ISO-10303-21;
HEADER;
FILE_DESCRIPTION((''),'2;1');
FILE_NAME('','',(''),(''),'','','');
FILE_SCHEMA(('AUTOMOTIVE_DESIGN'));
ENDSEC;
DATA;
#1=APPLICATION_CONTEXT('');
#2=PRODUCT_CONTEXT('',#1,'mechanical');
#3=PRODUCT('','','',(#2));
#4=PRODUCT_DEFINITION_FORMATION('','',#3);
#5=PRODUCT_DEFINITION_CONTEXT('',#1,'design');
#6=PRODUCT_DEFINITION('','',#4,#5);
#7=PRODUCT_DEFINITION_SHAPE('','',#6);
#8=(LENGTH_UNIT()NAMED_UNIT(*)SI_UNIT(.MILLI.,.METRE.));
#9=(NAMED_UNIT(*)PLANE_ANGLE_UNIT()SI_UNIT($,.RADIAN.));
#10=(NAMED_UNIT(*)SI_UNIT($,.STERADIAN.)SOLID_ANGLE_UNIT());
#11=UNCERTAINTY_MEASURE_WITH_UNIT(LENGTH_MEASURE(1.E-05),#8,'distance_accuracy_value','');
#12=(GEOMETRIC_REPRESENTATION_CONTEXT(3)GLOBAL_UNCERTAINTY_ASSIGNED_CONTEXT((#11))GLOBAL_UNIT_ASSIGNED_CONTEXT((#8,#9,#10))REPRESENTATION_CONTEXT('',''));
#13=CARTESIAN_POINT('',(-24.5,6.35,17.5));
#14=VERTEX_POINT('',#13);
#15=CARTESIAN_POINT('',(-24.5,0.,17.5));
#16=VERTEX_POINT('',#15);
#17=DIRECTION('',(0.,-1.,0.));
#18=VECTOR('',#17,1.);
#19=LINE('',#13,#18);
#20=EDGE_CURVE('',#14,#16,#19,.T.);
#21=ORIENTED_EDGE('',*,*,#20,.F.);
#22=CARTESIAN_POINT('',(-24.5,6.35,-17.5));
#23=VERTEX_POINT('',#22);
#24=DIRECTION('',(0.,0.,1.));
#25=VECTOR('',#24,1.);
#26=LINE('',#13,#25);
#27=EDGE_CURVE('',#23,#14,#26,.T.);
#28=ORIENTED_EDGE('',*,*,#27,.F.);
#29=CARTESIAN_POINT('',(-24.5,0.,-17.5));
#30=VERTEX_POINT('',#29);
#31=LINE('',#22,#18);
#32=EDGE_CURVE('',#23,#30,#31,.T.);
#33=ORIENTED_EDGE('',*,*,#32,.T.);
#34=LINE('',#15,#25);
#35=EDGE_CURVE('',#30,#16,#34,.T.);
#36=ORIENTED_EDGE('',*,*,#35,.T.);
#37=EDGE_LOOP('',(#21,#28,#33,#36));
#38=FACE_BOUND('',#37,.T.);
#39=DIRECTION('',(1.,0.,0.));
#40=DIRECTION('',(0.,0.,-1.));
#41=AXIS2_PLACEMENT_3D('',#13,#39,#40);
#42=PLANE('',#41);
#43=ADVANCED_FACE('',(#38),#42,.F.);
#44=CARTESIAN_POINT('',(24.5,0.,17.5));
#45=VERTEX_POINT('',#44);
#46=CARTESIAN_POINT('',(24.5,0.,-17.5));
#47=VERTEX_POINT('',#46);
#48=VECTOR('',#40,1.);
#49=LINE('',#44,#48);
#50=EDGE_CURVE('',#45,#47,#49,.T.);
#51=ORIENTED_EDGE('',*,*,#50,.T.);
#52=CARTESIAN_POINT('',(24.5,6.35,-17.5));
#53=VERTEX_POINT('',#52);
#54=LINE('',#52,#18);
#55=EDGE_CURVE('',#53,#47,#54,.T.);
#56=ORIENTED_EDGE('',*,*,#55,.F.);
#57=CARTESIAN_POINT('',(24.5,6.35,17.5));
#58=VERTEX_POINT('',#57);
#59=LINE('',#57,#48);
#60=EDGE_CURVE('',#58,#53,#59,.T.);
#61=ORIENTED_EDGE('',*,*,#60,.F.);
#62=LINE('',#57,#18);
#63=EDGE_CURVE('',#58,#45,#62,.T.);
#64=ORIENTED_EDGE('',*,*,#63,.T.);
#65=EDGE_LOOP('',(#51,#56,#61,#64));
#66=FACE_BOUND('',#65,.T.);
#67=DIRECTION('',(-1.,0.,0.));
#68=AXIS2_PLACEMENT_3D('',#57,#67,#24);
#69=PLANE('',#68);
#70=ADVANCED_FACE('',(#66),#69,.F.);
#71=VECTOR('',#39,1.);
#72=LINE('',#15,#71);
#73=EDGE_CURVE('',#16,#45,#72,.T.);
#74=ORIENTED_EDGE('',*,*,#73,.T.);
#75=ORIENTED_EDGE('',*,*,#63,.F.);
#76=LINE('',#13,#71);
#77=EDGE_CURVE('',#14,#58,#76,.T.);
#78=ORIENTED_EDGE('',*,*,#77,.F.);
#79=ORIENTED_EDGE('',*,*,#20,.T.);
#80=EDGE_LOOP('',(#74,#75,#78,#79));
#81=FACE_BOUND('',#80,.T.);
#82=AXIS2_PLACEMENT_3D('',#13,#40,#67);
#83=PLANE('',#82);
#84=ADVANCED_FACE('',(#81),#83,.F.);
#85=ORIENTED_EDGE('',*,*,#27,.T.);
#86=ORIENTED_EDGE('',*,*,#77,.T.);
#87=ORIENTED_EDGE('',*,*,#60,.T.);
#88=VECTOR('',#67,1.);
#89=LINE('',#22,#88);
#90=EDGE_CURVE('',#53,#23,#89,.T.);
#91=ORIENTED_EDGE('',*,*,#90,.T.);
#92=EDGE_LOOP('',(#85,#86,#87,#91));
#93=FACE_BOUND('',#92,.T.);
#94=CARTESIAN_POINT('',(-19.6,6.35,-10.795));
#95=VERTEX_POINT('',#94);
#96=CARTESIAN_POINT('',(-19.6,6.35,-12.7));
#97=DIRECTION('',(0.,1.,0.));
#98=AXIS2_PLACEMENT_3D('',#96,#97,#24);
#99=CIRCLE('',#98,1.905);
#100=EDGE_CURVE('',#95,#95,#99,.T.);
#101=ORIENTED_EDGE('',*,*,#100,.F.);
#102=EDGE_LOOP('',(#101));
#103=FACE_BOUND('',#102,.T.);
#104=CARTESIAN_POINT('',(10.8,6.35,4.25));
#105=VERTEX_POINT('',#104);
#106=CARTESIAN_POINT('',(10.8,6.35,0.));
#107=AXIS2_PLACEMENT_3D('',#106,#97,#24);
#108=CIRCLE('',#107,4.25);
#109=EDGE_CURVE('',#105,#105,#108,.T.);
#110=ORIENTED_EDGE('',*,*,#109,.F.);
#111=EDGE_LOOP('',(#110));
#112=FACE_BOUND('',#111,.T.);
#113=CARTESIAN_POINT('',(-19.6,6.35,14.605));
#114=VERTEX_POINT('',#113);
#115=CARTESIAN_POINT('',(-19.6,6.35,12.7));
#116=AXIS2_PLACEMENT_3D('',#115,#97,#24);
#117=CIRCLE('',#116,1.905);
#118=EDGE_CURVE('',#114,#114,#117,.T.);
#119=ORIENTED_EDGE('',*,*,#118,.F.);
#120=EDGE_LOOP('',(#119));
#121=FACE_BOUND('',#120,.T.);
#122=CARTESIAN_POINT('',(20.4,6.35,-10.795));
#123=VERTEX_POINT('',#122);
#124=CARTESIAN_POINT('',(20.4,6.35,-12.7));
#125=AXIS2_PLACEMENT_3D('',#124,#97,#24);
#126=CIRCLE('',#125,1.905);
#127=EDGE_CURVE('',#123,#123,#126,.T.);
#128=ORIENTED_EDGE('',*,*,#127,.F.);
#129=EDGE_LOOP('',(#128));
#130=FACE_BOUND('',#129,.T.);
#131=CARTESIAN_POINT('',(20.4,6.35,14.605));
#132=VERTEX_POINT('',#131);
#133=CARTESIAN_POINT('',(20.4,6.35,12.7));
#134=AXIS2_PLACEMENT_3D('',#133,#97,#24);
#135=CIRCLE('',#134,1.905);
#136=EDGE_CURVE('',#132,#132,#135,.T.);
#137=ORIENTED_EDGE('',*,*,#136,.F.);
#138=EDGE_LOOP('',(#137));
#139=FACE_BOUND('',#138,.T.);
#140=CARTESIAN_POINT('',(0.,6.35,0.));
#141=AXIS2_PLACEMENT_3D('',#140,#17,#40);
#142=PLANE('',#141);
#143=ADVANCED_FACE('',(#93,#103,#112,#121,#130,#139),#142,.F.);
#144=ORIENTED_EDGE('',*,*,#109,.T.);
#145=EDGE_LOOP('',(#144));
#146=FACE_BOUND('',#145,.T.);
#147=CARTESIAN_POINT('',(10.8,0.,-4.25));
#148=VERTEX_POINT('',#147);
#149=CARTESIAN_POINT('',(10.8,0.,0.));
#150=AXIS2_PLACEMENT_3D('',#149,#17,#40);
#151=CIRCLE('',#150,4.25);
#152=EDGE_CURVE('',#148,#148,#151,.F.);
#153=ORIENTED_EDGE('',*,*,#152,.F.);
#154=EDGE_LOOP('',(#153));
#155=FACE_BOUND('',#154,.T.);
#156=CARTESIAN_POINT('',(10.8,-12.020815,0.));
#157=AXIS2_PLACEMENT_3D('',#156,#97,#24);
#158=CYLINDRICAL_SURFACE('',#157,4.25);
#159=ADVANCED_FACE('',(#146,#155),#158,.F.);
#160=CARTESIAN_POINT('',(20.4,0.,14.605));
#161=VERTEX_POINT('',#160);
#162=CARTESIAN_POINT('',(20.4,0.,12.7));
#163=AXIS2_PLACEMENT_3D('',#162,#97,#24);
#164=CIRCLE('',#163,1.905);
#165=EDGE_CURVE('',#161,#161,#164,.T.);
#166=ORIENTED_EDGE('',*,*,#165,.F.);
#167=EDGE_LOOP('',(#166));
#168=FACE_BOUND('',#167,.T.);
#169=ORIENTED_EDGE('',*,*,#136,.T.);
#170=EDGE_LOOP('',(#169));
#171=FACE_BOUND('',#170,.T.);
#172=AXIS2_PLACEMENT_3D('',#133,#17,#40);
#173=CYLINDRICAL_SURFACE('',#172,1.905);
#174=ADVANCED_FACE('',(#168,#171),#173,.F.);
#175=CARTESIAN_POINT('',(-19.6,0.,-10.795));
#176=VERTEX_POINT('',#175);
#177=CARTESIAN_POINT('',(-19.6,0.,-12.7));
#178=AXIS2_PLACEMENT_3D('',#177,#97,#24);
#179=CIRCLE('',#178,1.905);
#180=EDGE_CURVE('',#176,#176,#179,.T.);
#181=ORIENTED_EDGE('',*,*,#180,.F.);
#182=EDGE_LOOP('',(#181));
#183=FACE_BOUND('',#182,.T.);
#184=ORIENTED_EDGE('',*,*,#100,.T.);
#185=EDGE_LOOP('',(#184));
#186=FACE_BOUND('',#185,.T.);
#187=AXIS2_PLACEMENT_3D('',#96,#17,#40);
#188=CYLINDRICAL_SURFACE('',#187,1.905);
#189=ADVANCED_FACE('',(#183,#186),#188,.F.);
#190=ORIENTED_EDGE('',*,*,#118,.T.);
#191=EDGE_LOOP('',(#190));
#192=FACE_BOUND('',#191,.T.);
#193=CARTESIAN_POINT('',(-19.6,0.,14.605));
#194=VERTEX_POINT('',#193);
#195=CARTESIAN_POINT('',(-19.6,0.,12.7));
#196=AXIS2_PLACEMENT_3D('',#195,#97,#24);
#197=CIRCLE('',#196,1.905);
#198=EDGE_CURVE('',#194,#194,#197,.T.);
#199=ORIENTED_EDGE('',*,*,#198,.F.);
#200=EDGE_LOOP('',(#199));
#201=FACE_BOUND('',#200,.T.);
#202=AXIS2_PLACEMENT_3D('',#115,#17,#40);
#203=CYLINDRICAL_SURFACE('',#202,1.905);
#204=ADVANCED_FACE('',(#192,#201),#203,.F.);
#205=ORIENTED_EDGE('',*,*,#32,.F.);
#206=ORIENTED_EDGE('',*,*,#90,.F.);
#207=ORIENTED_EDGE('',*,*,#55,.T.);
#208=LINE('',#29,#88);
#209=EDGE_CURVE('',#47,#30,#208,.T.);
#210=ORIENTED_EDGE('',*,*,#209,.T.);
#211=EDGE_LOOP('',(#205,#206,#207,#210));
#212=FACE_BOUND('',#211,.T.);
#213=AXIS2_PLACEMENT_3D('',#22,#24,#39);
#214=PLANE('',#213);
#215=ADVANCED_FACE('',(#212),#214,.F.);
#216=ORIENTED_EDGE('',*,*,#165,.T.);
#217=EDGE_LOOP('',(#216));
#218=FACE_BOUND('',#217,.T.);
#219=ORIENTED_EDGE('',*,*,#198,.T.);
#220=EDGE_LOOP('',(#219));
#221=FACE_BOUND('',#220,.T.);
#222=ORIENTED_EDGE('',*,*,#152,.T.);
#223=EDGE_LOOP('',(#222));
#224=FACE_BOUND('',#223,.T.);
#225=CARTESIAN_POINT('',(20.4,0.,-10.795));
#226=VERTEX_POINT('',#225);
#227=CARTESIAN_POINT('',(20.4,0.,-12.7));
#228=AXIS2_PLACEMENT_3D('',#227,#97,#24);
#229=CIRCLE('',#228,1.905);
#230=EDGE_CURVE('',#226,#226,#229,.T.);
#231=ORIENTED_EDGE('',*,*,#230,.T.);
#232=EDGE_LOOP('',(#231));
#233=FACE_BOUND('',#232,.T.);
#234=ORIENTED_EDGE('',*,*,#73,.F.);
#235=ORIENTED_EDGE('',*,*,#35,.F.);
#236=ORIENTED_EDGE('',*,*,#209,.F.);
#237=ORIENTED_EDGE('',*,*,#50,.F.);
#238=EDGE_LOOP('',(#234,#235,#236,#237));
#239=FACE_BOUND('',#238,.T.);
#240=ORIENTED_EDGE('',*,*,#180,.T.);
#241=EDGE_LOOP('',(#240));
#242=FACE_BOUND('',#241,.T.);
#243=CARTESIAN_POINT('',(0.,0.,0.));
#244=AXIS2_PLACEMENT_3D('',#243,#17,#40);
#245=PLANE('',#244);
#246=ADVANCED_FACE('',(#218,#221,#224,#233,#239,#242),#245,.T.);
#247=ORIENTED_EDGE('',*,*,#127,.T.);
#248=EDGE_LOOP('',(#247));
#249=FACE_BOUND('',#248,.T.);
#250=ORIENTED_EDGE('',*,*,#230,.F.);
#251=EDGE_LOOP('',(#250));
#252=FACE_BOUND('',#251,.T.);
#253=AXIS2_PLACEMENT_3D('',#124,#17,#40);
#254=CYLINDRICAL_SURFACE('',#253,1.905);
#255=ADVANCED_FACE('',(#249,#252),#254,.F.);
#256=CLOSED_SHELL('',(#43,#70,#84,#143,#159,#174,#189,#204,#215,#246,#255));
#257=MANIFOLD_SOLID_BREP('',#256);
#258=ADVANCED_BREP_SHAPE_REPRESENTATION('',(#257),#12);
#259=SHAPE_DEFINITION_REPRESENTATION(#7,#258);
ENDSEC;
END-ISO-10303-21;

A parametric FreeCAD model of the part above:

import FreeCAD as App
import Part
import Sketcher
from FreeCAD import Vector

doc = App.newDocument("Part")
body = doc.addObject("PartDesign::Body", "Body")

# Sketch on XZ plane
sketch1 = body.newObject("Sketcher::SketchObject", "Sketch")
sketch1.AttachmentSupport = (doc.getObject("XZ_Plane"), [""])
sketch1.MapMode = "FlatFace"
sketch1.addGeometry([
    Part.LineSegment(Vector(-24.5, -17.5, 0), Vector(-24.5, 17.5, 0)),  # 0
    Part.LineSegment(Vector(-24.5, 17.5, 0), Vector(24.5, 17.5, 0)),  # 1
    Part.LineSegment(Vector(24.5, 17.5, 0), Vector(24.5, -17.5, 0)),  # 2
    Part.LineSegment(Vector(24.5, -17.5, 0), Vector(-24.5, -17.5, 0)),  # 3
    Part.Circle(Vector(-19.6, 12.7, 0), Vector(0, 0, 1), 1.9),  # 4
    Part.Circle(Vector(20.4, 12.7, 0), Vector(0, 0, 1), 1.9),  # 5
    Part.Circle(Vector(-19.6, -12.7, 0), Vector(0, 0, 1), 1.9),  # 6
    Part.Circle(Vector(20.4, -12.7, 0), Vector(0, 0, 1), 1.9),  # 7
], False)
sketch1.addConstraint([
    Sketcher.Constraint("Coincident", 0, 2, 1, 1),
    Sketcher.Constraint("Coincident", 1, 2, 2, 1),
    Sketcher.Constraint("Coincident", 2, 2, 3, 1),
    Sketcher.Constraint("Coincident", 3, 2, 0, 1),
    Sketcher.Constraint("Vertical", 0),
    Sketcher.Constraint("Horizontal", 1),
    Sketcher.Constraint("Vertical", 2),
    Sketcher.Constraint("Horizontal", 3),
    Sketcher.Constraint("Equal", 4, 5),
    Sketcher.Constraint("Equal", 5, 6),
    Sketcher.Constraint("Equal", 6, 7),
    Sketcher.Constraint("Symmetric", 0, 2, 2, 2, -1, 1),
    Sketcher.Constraint("Symmetric", 4, 3, 6, 3, -1),
    Sketcher.Constraint("Symmetric", 5, 3, 7, 3, -1),
    Sketcher.Constraint("Horizontal", 4, 3, 5, 3),
    Sketcher.Constraint("Diameter", 4, 3.81),
    Sketcher.Constraint("DistanceX", 1, 1, 1, 2, 49.0),
    Sketcher.Constraint("DistanceY", 0, 1, 0, 2, 35.0),
    Sketcher.Constraint("DistanceX", 4, 3, 5, 3, 40.0),
    Sketcher.Constraint("DistanceX", 4, 3, -1, 1, 19.6),
    Sketcher.Constraint("DistanceY", -1, 1, 4, 3, 12.7),
])
pad1 = body.newObject("PartDesign::Pad", "Pad")
pad1.Profile = sketch1
pad1.Length = 6.35
pad1.Reversed = True

# Sketch on XZ plane
sketch2 = body.newObject("Sketcher::SketchObject", "Sketch001")
sketch2.AttachmentSupport = (doc.getObject("XZ_Plane"), [""])
sketch2.MapMode = "FlatFace"
sketch2.AttachmentOffset = App.Placement(Vector(0, 0, -6.35), App.Rotation())
sketch2.addGeometry(Part.Circle(Vector(10.8, 0, 0), Vector(0, 0, 1), 4.2), False)
sketch2.addConstraint([
    Sketcher.Constraint("PointOnObject", 0, 3, -1),
    Sketcher.Constraint("Diameter", 0, 8.5),
    Sketcher.Constraint("DistanceX", -1, 1, 0, 3, 10.8),
])
pocket1 = body.newObject("PartDesign::Pocket", "Pocket")
pocket1.Profile = sketch2
pocket1.Length = 6.35
pocket1.Reversed = True

doc.recompute()
